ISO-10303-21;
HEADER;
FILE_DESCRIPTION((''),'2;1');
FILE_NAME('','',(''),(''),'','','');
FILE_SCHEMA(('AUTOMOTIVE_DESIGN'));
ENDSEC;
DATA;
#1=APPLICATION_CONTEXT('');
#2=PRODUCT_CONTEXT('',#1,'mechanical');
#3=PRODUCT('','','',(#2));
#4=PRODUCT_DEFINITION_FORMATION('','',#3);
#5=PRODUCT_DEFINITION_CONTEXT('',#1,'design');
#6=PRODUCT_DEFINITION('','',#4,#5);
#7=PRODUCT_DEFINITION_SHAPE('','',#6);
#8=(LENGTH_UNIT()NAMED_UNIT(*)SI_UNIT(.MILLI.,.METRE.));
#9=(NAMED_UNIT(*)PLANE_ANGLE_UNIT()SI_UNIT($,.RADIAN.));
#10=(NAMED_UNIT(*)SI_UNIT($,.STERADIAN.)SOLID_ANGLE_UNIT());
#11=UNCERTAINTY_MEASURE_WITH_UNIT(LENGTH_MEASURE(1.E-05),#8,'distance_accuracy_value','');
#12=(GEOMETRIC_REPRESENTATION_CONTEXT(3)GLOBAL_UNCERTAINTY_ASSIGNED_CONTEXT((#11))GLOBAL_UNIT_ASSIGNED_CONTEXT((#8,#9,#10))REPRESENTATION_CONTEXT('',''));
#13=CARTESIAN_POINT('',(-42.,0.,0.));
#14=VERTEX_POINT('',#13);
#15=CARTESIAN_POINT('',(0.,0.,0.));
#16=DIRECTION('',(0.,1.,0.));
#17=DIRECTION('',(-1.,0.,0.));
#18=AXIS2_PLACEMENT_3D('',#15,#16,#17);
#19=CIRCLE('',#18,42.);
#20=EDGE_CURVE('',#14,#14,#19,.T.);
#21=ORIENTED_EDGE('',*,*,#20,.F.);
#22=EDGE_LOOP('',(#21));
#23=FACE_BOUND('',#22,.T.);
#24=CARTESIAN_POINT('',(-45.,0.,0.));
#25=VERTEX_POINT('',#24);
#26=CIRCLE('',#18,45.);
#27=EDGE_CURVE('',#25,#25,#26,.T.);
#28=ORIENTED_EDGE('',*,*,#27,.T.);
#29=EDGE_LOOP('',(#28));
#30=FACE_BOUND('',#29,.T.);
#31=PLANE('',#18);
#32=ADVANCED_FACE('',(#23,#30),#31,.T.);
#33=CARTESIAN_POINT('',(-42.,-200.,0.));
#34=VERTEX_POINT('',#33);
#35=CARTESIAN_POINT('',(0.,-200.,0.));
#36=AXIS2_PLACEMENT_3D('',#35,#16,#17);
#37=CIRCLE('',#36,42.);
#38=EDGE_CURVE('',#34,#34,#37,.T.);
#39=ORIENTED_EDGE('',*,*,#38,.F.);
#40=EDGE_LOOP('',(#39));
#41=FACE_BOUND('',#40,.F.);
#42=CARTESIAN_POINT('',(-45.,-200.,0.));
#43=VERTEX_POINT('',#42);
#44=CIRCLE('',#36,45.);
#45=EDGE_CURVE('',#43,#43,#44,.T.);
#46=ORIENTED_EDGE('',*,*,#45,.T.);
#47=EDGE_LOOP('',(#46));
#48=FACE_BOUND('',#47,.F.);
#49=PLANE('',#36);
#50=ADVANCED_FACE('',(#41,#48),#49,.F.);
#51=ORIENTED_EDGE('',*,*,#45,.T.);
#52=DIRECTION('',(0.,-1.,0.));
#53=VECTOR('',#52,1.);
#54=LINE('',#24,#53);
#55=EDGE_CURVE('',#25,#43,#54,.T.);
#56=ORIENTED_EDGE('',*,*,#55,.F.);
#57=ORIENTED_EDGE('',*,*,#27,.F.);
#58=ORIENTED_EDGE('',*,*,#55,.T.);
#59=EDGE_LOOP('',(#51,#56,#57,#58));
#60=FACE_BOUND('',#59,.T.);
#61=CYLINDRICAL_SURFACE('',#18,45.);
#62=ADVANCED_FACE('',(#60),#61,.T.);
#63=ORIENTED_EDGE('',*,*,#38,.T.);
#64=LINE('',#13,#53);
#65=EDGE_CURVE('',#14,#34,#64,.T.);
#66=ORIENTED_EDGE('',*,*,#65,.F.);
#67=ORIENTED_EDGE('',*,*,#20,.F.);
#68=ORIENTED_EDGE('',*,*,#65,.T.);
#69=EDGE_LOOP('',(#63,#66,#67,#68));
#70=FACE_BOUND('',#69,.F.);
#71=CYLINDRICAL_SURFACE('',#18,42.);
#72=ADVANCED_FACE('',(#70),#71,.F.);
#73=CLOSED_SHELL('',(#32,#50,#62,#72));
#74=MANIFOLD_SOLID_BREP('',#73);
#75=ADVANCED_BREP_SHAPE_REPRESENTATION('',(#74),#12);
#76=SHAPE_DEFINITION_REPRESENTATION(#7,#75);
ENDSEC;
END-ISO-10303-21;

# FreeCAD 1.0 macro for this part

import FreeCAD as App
import Part
import Sketcher

doc = App.newDocument("Part")
params = doc.addObject("Spreadsheet::Sheet", "Params")
for row, (alias, value) in enumerate([
    ("sketch1_diameter", "90 mm"),
    ("sketch1_diameter2", "84 mm"),
    ("pad1_length", "200 mm"),
], start=1):
    params.set(f"A{row}", alias)
    params.set(f"B{row}", "=" + value)
    params.setAlias(f"B{row}", alias)

body = doc.addObject("PartDesign::Body", "Body")

# Sketch on XZ plane
sketch1 = body.newObject("Sketcher::SketchObject", "Sketch")
sketch1.AttachmentSupport = (doc.getObject("XZ_Plane"), [""])
sketch1.MapMode = "FlatFace"
sketch1.addGeometry([
    Part.Circle(App.Vector(0, 0, 0), App.Vector(0, 0, 1), 45),
    Part.Circle(App.Vector(0, 0, 0), App.Vector(0, 0, 1), 42),
], False)
sketch1.addConstraint([
    Sketcher.Constraint("Coincident", 0, 3, -1, 1),
    Sketcher.Constraint("Coincident", 1, 3, -1, 1),
    Sketcher.Constraint("Diameter", 0, 90.0),
    Sketcher.Constraint("Diameter", 1, 84.0),
])
sketch1.setExpression("Constraints[2]", "Params.sketch1_diameter")
sketch1.setExpression("Constraints[3]", "Params.sketch1_diameter2")
pad1 = body.newObject("PartDesign::Pad", "Pad")
pad1.Profile = sketch1
pad1.setExpression("Length", "Params.pad1_length")

doc.recompute()
